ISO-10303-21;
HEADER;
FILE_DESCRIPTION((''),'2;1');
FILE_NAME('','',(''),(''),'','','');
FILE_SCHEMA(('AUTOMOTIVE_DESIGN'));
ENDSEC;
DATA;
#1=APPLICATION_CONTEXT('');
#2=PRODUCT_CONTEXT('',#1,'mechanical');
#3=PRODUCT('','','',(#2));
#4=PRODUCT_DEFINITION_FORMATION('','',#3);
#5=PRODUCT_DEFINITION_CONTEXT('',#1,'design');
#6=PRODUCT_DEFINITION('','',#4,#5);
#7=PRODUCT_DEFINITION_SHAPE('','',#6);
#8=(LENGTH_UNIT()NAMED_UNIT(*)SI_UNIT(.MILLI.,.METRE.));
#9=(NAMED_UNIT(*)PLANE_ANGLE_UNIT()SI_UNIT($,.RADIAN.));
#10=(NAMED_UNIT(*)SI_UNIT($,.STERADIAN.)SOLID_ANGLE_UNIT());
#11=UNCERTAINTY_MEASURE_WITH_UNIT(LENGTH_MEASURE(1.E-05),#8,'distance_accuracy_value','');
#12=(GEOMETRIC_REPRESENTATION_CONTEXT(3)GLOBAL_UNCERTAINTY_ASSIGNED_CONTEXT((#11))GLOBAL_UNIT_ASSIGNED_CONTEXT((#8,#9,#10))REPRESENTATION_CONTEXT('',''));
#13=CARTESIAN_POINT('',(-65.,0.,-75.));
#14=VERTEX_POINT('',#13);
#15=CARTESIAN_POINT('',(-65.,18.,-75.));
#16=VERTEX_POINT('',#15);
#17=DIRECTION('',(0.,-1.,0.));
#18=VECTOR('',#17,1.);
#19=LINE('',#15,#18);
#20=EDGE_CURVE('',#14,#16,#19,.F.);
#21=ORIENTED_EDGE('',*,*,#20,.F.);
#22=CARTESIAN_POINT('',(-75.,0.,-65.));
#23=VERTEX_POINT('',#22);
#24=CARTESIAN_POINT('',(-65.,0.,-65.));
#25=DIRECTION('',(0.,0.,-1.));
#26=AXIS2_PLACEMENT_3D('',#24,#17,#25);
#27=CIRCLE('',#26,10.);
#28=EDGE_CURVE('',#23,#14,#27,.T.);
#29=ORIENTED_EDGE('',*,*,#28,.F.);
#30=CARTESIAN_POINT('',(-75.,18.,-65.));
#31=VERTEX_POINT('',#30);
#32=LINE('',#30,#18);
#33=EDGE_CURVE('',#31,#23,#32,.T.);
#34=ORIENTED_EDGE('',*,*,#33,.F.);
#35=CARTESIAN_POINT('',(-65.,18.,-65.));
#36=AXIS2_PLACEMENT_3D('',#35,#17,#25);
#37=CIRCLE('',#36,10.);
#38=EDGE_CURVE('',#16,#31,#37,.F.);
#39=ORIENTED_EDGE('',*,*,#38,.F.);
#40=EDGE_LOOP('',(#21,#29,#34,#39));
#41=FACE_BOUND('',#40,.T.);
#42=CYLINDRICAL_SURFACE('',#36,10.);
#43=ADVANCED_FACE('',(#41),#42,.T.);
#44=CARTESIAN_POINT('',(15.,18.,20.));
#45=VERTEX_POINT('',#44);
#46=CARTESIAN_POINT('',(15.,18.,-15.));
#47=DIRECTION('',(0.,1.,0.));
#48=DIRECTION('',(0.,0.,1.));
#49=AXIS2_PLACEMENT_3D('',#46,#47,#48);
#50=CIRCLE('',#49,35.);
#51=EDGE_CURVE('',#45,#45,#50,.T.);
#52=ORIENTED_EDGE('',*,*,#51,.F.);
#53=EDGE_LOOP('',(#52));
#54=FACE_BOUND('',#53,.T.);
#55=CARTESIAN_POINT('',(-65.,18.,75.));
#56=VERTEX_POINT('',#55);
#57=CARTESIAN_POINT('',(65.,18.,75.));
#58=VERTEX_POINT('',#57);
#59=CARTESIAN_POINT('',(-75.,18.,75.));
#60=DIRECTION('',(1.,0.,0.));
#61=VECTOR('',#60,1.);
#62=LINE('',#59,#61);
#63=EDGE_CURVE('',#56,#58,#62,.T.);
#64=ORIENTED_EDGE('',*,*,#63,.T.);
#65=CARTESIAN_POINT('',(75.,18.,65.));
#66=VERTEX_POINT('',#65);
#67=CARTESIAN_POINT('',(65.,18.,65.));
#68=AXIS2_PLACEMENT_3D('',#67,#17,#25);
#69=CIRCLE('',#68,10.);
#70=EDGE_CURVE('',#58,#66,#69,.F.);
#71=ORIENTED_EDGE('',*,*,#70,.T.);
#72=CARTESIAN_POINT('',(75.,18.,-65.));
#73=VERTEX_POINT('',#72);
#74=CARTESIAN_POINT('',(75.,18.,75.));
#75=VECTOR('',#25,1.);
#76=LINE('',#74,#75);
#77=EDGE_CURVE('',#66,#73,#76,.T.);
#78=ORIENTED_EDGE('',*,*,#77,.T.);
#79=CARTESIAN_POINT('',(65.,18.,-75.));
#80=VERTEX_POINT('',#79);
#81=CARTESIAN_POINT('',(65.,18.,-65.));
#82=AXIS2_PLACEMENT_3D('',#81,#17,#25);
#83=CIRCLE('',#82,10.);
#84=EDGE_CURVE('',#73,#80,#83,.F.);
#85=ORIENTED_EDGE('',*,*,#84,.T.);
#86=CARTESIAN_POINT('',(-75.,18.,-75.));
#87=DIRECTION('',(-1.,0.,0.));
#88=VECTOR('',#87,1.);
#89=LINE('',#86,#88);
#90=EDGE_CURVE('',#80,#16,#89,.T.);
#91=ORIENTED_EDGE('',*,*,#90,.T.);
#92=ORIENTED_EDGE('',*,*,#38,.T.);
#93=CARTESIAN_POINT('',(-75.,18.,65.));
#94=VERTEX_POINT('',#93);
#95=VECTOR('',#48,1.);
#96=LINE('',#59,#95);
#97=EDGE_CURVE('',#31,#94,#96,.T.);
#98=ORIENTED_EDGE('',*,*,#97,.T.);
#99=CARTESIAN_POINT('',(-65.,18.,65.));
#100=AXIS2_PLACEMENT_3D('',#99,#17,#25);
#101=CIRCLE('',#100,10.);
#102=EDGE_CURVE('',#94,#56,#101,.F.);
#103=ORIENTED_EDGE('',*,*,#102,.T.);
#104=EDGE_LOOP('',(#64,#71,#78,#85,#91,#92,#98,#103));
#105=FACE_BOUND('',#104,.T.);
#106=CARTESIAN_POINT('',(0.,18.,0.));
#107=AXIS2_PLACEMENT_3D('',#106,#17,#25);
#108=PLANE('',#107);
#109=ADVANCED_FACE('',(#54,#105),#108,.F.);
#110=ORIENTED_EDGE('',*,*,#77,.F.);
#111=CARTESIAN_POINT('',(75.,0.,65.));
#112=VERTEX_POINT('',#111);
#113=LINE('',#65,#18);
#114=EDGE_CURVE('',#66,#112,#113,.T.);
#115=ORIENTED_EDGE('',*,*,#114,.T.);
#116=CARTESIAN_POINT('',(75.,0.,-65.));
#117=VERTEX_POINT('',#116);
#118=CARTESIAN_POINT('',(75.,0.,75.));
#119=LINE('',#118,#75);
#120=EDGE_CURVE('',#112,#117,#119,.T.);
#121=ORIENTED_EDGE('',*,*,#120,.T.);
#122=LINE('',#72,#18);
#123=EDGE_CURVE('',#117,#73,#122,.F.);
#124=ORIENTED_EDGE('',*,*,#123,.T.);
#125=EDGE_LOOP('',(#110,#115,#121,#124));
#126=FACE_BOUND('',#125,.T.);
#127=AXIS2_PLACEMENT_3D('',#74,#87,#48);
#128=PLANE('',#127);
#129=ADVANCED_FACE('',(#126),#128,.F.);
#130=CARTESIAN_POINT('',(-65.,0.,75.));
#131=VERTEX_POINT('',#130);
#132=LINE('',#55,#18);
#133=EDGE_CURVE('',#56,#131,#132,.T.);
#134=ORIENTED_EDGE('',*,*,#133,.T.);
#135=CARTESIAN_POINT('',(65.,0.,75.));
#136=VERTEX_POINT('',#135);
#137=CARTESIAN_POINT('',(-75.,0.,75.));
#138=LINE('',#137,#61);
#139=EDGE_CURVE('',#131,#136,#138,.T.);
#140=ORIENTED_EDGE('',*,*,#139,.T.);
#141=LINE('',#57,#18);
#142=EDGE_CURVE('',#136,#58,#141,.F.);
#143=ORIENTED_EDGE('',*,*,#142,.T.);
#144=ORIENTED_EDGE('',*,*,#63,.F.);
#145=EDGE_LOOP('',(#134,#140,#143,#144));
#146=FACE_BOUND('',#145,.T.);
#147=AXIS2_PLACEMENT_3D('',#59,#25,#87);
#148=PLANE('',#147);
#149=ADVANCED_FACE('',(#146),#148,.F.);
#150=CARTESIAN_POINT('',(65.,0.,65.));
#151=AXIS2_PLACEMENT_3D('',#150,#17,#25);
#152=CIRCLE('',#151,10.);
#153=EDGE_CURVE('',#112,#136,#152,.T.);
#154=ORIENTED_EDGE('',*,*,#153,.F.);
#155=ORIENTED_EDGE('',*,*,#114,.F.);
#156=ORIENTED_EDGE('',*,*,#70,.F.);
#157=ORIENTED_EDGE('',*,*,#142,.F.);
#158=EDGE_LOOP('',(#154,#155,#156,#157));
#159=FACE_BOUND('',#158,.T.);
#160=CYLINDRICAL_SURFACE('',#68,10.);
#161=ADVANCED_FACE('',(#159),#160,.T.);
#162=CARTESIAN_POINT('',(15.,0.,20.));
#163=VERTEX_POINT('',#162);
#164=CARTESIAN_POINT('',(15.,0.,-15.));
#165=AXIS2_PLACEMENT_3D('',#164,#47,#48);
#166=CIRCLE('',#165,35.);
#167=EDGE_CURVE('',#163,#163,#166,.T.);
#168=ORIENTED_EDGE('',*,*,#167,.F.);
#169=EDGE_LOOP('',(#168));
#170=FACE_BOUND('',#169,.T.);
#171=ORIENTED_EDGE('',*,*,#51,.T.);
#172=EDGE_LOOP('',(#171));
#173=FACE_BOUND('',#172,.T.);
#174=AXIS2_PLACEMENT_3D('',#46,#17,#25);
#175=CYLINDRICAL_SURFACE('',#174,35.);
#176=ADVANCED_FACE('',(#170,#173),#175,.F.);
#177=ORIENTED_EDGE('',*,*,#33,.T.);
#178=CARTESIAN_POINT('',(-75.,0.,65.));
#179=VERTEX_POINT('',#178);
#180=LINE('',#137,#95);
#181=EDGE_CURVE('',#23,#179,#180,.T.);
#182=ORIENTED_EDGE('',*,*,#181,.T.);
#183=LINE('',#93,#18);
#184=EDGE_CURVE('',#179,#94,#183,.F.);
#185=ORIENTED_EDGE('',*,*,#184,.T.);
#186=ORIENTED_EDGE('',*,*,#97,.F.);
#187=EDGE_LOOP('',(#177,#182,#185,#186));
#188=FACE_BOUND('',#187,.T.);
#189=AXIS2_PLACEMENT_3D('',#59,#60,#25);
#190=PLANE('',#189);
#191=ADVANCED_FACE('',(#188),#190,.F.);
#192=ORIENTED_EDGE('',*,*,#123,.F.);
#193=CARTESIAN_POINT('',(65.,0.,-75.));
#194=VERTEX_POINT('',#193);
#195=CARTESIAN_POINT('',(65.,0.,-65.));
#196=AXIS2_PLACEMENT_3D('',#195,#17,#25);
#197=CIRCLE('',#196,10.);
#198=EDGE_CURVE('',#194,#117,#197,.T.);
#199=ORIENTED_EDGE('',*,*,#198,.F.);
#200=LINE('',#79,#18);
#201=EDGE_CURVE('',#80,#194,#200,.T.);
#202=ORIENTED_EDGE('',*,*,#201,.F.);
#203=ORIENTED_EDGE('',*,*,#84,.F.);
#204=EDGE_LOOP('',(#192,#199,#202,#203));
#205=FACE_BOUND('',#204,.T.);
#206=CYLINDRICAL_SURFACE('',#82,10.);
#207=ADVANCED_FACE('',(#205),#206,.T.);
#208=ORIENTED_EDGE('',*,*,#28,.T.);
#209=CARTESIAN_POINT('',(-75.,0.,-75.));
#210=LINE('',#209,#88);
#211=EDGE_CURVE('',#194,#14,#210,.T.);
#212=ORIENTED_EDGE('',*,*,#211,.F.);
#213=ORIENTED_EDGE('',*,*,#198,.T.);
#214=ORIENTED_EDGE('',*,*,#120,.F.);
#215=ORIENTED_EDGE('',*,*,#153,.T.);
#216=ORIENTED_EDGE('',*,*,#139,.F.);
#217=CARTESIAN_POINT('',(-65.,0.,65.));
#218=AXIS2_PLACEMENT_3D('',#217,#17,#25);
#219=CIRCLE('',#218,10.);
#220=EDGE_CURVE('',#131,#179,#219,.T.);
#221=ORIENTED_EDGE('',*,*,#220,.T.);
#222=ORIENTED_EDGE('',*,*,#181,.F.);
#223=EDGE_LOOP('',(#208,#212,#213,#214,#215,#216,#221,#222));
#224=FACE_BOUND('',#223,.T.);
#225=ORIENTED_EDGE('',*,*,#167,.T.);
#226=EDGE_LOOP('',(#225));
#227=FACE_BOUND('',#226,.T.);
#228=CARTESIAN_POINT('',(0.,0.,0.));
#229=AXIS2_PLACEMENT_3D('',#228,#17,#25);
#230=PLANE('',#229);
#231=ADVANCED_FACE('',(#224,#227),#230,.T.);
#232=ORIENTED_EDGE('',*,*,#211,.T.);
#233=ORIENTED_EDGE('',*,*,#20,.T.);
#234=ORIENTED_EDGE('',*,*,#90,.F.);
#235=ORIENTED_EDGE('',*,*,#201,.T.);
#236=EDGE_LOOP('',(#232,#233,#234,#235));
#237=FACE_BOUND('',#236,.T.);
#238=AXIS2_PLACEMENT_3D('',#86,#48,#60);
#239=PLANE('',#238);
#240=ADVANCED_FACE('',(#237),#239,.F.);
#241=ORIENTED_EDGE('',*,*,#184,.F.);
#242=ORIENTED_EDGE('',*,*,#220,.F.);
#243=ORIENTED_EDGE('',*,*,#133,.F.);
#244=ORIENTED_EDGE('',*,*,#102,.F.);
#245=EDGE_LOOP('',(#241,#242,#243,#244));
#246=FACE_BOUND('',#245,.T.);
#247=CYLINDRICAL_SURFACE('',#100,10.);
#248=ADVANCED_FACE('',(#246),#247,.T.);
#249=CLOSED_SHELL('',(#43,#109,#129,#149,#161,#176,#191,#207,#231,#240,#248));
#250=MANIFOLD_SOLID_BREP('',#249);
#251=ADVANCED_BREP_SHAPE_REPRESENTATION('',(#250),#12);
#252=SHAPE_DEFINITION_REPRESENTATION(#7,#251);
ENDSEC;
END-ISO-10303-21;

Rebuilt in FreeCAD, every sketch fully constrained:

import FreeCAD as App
import Part
import Sketcher

V = App.Vector


def edges_at(feature, points):
    """Names of the edges that pass closest to the given points."""
    edges = feature.Shape.Edges
    near = lambda p: min(range(len(edges)), key=lambda i: edges[i].distToShape(Part.Vertex(*p))[0])
    return sorted({f"Edge{near(p) + 1}" for p in points})

doc = App.newDocument("Part")
params = doc.addObject("Spreadsheet::Sheet", "Params")
for row, (alias, value) in enumerate([
    ("sketch1_diameter", "70 mm"),
    ("sketch1_width", "150 mm"),
    ("pad1_length", "18 mm"),
    ("fillet_radius", "10 mm"),
], start=1):
    params.set(f"A{row}", alias)
    params.set(f"B{row}", "=" + value)
    params.setAlias(f"B{row}", alias)

body = doc.addObject("PartDesign::Body", "Body")

# Sketch on XZ plane
sketch1 = body.newObject("Sketcher::SketchObject", "Sketch")
sketch1.AttachmentSupport = (doc.getObject("XZ_Plane"), [""])
sketch1.MapMode = "FlatFace"
sketch1.addGeometry([
    Part.LineSegment(V(-75, -75, 0), V(-75, 75, 0)),  # 0
    Part.LineSegment(V(-75, 75, 0), V(75, 75, 0)),  # 1
    Part.LineSegment(V(75, 75, 0), V(75, -75, 0)),  # 2
    Part.LineSegment(V(75, -75, 0), V(-75, -75, 0)),  # 3
    Part.Circle(V(15, -15, 0), V(0, 0, 1), 35),  # 4
], False)
sketch1.addConstraint([
    Sketcher.Constraint("Coincident", 0, 2, 1, 1),
    Sketcher.Constraint("Coincident", 1, 2, 2, 1),
    Sketcher.Constraint("Coincident", 2, 2, 3, 1),
    Sketcher.Constraint("Coincident", 3, 2, 0, 1),
    Sketcher.Constraint("Vertical", 0),
    Sketcher.Constraint("Horizontal", 1),
    Sketcher.Constraint("Vertical", 2),
    Sketcher.Constraint("Horizontal", 3),
    Sketcher.Constraint("Symmetric", 0, 2, 2, 2, -1, 1),
    Sketcher.Constraint("Equal", 3, 0),
    Sketcher.Constraint("Diameter", 4, 70.0),
    Sketcher.Constraint("DistanceX", 1, 1, 1, 2, 150.0),
    Sketcher.Constraint("DistanceX", -1, 1, 4, 3, 15.0),
    Sketcher.Constraint("DistanceY", 4, 3, -1, 1, 15.0),
])
sketch1.setExpression("Constraints[10]", "Params.sketch1_diameter")
sketch1.setExpression("Constraints[11]", "Params.sketch1_width")
pad1 = body.newObject("PartDesign::Pad", "Pad")
pad1.Profile = sketch1
pad1.setExpression("Length", "Params.pad1_length")
pad1.Reversed = True
doc.recompute()

fillet = body.newObject("PartDesign::Fillet", "Fillet")
fillet.Base = (pad1, edges_at(pad1, [
    (-75, 9, -75),
    (75, 9, -75),
    (75, 9, 75),
    (-75, 9, 75),
]))
fillet.setExpression("Radius", "Params.fillet_radius")

doc.recompute()
